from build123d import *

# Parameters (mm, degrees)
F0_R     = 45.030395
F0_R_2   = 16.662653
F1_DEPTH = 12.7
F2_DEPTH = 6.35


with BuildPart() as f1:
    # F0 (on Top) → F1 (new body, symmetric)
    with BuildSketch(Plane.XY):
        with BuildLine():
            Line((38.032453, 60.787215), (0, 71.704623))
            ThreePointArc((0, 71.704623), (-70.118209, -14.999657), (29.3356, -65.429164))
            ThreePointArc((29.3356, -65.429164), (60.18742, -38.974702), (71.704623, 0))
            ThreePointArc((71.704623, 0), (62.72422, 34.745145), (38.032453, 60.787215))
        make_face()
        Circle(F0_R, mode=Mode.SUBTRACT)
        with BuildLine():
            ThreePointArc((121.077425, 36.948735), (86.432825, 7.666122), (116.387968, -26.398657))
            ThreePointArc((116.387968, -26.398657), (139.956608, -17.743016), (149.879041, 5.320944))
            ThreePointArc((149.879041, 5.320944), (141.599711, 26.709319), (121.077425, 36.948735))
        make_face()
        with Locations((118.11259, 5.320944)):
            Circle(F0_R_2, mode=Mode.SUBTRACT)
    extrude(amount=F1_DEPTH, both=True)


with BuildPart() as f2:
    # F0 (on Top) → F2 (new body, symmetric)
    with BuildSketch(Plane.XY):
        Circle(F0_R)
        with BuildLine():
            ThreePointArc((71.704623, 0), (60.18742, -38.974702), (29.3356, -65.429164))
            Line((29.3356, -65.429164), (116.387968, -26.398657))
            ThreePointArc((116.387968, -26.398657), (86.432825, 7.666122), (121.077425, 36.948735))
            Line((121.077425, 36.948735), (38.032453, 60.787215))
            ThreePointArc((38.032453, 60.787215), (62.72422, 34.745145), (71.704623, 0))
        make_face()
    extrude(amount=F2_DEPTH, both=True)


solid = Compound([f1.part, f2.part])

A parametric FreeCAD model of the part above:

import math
import FreeCAD as App
import Part
import Sketcher
from FreeCAD import Vector
Q = App.Units.Quantity

doc = App.newDocument("Part")
body = doc.addObject("PartDesign::Body", "Body")
body.AllowCompound = True

sketch1 = doc.addObject("Sketcher::SketchObject", "Sketch")
body.addObject(sketch1)
sketch1.AttachmentSupport = (doc.XY_Plane, [""])
sketch1.MapMode = "FlatFace"
sketch1.addGeometry([
    Part.LineSegment(Vector(38, 61, 0), Vector(0, 72, 0)),
    Part.ArcOfCircle(Part.Circle(Vector(0, 0, 0), Vector(0, 0, 1), 72), math.radians(90), math.radians(294)),
    Part.ArcOfCircle(Part.Circle(Vector(0, 0, 0), Vector(0, 0, 1), 72), math.radians(-66), math.radians(0)),
    Part.ArcOfCircle(Part.Circle(Vector(0, 0, 0), Vector(0, 0, 1), 72), math.radians(0), math.radians(58)),
    Part.Circle(Vector(0, 0, 0), Vector(0, 0, 1), 45),
    Part.ArcOfCircle(Part.Circle(Vector(118, 5, 0), Vector(0, 0, 1), 32), math.radians(85), math.radians(267)),
    Part.ArcOfCircle(Part.Circle(Vector(118, 5, 0), Vector(0, 0, 1), 32), math.radians(-93), math.radians(0)),
    Part.ArcOfCircle(Part.Circle(Vector(118, 5, 0), Vector(0, 0, 1), 32), math.radians(0), math.radians(85)),
    Part.Circle(Vector(118, 5, 0), Vector(0, 0, 1), 17),
], False)
sketch1.addConstraint([
    Sketcher.Constraint("Coincident", 0, 2, 1, 1),
    Sketcher.Constraint("Tangent", 1, 2, 2, 1),
    Sketcher.Constraint("Tangent", 2, 2, 3, 1),
    Sketcher.Constraint("Coincident", 3, 2, 0, 1),
    Sketcher.Constraint("Tangent", 5, 2, 6, 1),
    Sketcher.Constraint("Tangent", 6, 2, 7, 1),
    Sketcher.Constraint("Tangent", 7, 2, 5, 1),
    Sketcher.Constraint("Coincident", 1, 3, -1, 1),
    Sketcher.Constraint("Coincident", 3, 3, -1, 1),
    Sketcher.Constraint("Coincident", 4, 3, -1, 1),
    Sketcher.Constraint("Coincident", 8, 3, 5, 3),
    Sketcher.Constraint("PointOnObject", 0, 2, -2),
    Sketcher.Constraint("PointOnObject", 2, 2, -1),
    Sketcher.Constraint("Horizontal", 8, 3, 6, 2),
    Sketcher.Constraint("Diameter", 4, 90.06079),
    Sketcher.Constraint("Radius", 5, 31.766451),
    Sketcher.Constraint("Diameter", 8, 33.325306),
    Sketcher.Constraint("Radius", 1, 71.704623),
    Sketcher.Constraint("DistanceX", -1, 1, 1, 2, 29.3356),
    Sketcher.Constraint("DistanceY", 5, 2, 5, 3, 31.719601),
    Sketcher.Constraint("DistanceX", -1, 1, 5, 3, 118.112591),
    Sketcher.Constraint("DistanceY", 1, 2, 6, 3, 70.750109),
    Sketcher.Constraint("DistanceY", 3, 2, 0, 2, 10.917408),
    Sketcher.Constraint("DistanceY", 7, 3, 7, 2, 31.62779),
])
pad1 = doc.addObject("PartDesign::Pad", "Pad")
body.addObject(pad1)
pad1.Profile = sketch1
pad1.Length = Q("1 in")
pad1.Midplane = True
body2 = doc.addObject("PartDesign::Body", "Body001")
body2.AllowCompound = True

sketch2 = doc.addObject("Sketcher::SketchObject", "Sketch001")
body2.addObject(sketch2)
sketch2.AttachmentSupport = (doc.getObject("XY_Plane001"), [""])
sketch2.MapMode = "FlatFace"
sketch2.addGeometry([
    Part.Circle(Vector(0, 0, 0), Vector(0, 0, 1), 45),
    Part.ArcOfCircle(Part.Circle(Vector(0, 0, 0), Vector(0, 0, 1), 72), math.radians(-66), math.radians(0)),
    Part.LineSegment(Vector(29, -65, 0), Vector(116, -26, 0)),
    Part.ArcOfCircle(Part.Circle(Vector(118, 5, 0), Vector(0, 0, 1), 32), math.radians(85), math.radians(267)),
    Part.LineSegment(Vector(121, 37, 0), Vector(38, 61, 0)),
    Part.ArcOfCircle(Part.Circle(Vector(0, 0, 0), Vector(0, 0, 1), 72), math.radians(0), math.radians(58)),
], False)
sketch2.addConstraint([
    Sketcher.Constraint("Tangent", 1, 1, 2, 1),
    Sketcher.Constraint("Coincident", 2, 2, 3, 2),
    Sketcher.Constraint("Coincident", 3, 1, 4, 1),
    Sketcher.Constraint("Coincident", 4, 2, 5, 2),
    Sketcher.Constraint("Tangent", 5, 1, 1, 2),
    Sketcher.Constraint("Coincident", 0, 3, -1, 1),
    Sketcher.Constraint("Coincident", 1, 3, -1, 1),
    Sketcher.Constraint("PointOnObject", 5, 1, -1),
    Sketcher.Constraint("Diameter", 0, 90.06079),
    Sketcher.Constraint("Radius", 3, 31.766451),
    Sketcher.Constraint("Radius", 1, 71.704624),
    Sketcher.Constraint("Radius", 5, 71.704628),
    Sketcher.Constraint("DistanceX", -1, 1, 1, 1, 29.3356),
    Sketcher.Constraint("DistanceY", 2, 2, 3, 3, 31.719601),
    Sketcher.Constraint("DistanceX", 5, 1, 3, 1, 49.372802),
    Sketcher.Constraint("Distance", 4, 86.39873),
    Sketcher.Constraint("DistanceX", -1, 1, 3, 3, 118.112591),
])
pad2 = doc.addObject("PartDesign::Pad", "Pad001")
body2.addObject(pad2)
pad2.Profile = sketch2
pad2.Length = Q("0.5 in")
pad2.Midplane = True

doc.recompute()
